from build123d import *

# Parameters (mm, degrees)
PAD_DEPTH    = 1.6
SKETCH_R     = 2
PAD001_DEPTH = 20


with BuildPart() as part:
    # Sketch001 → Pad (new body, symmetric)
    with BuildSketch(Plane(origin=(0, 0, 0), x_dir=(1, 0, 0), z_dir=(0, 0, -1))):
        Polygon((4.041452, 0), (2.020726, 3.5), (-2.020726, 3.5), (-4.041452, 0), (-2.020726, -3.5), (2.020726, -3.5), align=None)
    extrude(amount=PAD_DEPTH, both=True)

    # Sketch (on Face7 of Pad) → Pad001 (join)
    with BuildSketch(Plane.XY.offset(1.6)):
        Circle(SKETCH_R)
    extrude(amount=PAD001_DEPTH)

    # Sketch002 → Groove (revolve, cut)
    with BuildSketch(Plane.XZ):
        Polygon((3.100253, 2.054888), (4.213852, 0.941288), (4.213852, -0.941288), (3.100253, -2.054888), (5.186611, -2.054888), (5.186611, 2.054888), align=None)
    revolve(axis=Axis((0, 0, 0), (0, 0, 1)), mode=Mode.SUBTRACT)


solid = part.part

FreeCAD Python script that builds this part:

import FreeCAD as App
import Part
import Sketcher

V = App.Vector
Q = App.Units.Quantity


def add_polygon(sketch, points):
    """Adds a closed chain of lines whose ends are joined by coincident constraints."""
    first, n = sketch.GeometryCount, len(points)
    for a, b in zip(points, points[1:] + points[:1]):
        sketch.addGeometry(Part.LineSegment(App.Vector(*a, 0), App.Vector(*b, 0)), False)
    for i in range(n):
        sketch.addConstraint(Sketcher.Constraint("Coincident", first + i, 2, first + (i + 1) % n, 1))

doc = App.newDocument("Part")
body = doc.addObject("PartDesign::Body", "Body")

# Sketch on XY plane
sketch1 = body.newObject("Sketcher::SketchObject", "Sketch")
sketch1.AttachmentSupport = (doc.getObject("XY_Plane"), [""])
sketch1.MapMode = "FlatFace"
add_polygon(sketch1, [(4, 0), (2, -3.5), (-2, -3.5), (-4, 0), (-2, 3.5), (2, 3.5)])  # lines 0-5
sketch1.addConstraint([
    Sketcher.Constraint("Horizontal", 1),
    Sketcher.Constraint("Horizontal", 4),
    Sketcher.Constraint("Symmetric", 0, 2, 3, 2, -1, 1),
    Sketcher.Constraint("Symmetric", 2, 2, 5, 2, -1, 1),
    Sketcher.Constraint("PointOnObject", 2, 2, -1),
    Sketcher.Constraint("Parallel", 2, 5),
    Sketcher.Constraint("Vertical", 1, 2, 3, 2),
    Sketcher.Constraint("Angle", 0, Q("-120.000001 deg")),
    Sketcher.Constraint("DistanceY", 1, 2, 3, 2, 7.0),
    Sketcher.Constraint("DistanceX", 1, 2, 1, 1, 4.041452),
])
pad1 = body.newObject("PartDesign::Pad", "Pad")
pad1.Profile = sketch1
pad1.Length = 3.2
pad1.Midplane = True

# Sketch on XY plane
sketch2 = body.newObject("Sketcher::SketchObject", "Sketch001")
sketch2.AttachmentSupport = (doc.getObject("XY_Plane"), [""])
sketch2.MapMode = "FlatFace"
sketch2.AttachmentOffset = App.Placement(V(0, 0, 1.6), App.Rotation())
sketch2.addGeometry(Part.Circle(V(0, 0, 0), V(0, 0, 1), 2), False)
sketch2.addConstraint([
    Sketcher.Constraint("Coincident", 0, 3, -1, 1),
    Sketcher.Constraint("Diameter", 0, 4.0),
])
pad2 = body.newObject("PartDesign::Pad", "Pad001")
pad2.Profile = sketch2
pad2.Length = 20

# Sketch on XZ plane
sketch3 = body.newObject("Sketcher::SketchObject", "Sketch002")
sketch3.AttachmentSupport = (doc.getObject("XZ_Plane"), [""])
sketch3.MapMode = "FlatFace"
add_polygon(sketch3, [(3.1, 2.1), (4.2, 0.9), (4.2, -0.9), (3.1, -2.1), (5.2, -2.1), (5.2, 2.1)])  # lines 0-5
sketch3.addConstraint([
    Sketcher.Constraint("Vertical", 1),
    Sketcher.Constraint("Horizontal", 3),
    Sketcher.Constraint("Vertical", 4),
    Sketcher.Constraint("Horizontal", 5),
    Sketcher.Constraint("Symmetric", 2, 2, 5, 2, -1),
    Sketcher.Constraint("Perpendicular", 0, 2),
    Sketcher.Constraint("Equal", 0, 2),
    Sketcher.Constraint("DistanceX", 3, 1, 3, 2, 2.086358),
    Sketcher.Constraint("DistanceX", 2, 2, 1, 2, 1.113599),
    Sketcher.Constraint("DistanceY", 1, 2, 1, 1, 1.882576),
    Sketcher.Constraint("DistanceX", -1, 1, 3, 2, 5.186611),
])
groove = body.newObject("PartDesign::Groove", "Groove")
groove.Profile = sketch3
groove.ReferenceAxis = (sketch3, ["V_Axis"])
groove.Angle = 360

doc.recompute()
